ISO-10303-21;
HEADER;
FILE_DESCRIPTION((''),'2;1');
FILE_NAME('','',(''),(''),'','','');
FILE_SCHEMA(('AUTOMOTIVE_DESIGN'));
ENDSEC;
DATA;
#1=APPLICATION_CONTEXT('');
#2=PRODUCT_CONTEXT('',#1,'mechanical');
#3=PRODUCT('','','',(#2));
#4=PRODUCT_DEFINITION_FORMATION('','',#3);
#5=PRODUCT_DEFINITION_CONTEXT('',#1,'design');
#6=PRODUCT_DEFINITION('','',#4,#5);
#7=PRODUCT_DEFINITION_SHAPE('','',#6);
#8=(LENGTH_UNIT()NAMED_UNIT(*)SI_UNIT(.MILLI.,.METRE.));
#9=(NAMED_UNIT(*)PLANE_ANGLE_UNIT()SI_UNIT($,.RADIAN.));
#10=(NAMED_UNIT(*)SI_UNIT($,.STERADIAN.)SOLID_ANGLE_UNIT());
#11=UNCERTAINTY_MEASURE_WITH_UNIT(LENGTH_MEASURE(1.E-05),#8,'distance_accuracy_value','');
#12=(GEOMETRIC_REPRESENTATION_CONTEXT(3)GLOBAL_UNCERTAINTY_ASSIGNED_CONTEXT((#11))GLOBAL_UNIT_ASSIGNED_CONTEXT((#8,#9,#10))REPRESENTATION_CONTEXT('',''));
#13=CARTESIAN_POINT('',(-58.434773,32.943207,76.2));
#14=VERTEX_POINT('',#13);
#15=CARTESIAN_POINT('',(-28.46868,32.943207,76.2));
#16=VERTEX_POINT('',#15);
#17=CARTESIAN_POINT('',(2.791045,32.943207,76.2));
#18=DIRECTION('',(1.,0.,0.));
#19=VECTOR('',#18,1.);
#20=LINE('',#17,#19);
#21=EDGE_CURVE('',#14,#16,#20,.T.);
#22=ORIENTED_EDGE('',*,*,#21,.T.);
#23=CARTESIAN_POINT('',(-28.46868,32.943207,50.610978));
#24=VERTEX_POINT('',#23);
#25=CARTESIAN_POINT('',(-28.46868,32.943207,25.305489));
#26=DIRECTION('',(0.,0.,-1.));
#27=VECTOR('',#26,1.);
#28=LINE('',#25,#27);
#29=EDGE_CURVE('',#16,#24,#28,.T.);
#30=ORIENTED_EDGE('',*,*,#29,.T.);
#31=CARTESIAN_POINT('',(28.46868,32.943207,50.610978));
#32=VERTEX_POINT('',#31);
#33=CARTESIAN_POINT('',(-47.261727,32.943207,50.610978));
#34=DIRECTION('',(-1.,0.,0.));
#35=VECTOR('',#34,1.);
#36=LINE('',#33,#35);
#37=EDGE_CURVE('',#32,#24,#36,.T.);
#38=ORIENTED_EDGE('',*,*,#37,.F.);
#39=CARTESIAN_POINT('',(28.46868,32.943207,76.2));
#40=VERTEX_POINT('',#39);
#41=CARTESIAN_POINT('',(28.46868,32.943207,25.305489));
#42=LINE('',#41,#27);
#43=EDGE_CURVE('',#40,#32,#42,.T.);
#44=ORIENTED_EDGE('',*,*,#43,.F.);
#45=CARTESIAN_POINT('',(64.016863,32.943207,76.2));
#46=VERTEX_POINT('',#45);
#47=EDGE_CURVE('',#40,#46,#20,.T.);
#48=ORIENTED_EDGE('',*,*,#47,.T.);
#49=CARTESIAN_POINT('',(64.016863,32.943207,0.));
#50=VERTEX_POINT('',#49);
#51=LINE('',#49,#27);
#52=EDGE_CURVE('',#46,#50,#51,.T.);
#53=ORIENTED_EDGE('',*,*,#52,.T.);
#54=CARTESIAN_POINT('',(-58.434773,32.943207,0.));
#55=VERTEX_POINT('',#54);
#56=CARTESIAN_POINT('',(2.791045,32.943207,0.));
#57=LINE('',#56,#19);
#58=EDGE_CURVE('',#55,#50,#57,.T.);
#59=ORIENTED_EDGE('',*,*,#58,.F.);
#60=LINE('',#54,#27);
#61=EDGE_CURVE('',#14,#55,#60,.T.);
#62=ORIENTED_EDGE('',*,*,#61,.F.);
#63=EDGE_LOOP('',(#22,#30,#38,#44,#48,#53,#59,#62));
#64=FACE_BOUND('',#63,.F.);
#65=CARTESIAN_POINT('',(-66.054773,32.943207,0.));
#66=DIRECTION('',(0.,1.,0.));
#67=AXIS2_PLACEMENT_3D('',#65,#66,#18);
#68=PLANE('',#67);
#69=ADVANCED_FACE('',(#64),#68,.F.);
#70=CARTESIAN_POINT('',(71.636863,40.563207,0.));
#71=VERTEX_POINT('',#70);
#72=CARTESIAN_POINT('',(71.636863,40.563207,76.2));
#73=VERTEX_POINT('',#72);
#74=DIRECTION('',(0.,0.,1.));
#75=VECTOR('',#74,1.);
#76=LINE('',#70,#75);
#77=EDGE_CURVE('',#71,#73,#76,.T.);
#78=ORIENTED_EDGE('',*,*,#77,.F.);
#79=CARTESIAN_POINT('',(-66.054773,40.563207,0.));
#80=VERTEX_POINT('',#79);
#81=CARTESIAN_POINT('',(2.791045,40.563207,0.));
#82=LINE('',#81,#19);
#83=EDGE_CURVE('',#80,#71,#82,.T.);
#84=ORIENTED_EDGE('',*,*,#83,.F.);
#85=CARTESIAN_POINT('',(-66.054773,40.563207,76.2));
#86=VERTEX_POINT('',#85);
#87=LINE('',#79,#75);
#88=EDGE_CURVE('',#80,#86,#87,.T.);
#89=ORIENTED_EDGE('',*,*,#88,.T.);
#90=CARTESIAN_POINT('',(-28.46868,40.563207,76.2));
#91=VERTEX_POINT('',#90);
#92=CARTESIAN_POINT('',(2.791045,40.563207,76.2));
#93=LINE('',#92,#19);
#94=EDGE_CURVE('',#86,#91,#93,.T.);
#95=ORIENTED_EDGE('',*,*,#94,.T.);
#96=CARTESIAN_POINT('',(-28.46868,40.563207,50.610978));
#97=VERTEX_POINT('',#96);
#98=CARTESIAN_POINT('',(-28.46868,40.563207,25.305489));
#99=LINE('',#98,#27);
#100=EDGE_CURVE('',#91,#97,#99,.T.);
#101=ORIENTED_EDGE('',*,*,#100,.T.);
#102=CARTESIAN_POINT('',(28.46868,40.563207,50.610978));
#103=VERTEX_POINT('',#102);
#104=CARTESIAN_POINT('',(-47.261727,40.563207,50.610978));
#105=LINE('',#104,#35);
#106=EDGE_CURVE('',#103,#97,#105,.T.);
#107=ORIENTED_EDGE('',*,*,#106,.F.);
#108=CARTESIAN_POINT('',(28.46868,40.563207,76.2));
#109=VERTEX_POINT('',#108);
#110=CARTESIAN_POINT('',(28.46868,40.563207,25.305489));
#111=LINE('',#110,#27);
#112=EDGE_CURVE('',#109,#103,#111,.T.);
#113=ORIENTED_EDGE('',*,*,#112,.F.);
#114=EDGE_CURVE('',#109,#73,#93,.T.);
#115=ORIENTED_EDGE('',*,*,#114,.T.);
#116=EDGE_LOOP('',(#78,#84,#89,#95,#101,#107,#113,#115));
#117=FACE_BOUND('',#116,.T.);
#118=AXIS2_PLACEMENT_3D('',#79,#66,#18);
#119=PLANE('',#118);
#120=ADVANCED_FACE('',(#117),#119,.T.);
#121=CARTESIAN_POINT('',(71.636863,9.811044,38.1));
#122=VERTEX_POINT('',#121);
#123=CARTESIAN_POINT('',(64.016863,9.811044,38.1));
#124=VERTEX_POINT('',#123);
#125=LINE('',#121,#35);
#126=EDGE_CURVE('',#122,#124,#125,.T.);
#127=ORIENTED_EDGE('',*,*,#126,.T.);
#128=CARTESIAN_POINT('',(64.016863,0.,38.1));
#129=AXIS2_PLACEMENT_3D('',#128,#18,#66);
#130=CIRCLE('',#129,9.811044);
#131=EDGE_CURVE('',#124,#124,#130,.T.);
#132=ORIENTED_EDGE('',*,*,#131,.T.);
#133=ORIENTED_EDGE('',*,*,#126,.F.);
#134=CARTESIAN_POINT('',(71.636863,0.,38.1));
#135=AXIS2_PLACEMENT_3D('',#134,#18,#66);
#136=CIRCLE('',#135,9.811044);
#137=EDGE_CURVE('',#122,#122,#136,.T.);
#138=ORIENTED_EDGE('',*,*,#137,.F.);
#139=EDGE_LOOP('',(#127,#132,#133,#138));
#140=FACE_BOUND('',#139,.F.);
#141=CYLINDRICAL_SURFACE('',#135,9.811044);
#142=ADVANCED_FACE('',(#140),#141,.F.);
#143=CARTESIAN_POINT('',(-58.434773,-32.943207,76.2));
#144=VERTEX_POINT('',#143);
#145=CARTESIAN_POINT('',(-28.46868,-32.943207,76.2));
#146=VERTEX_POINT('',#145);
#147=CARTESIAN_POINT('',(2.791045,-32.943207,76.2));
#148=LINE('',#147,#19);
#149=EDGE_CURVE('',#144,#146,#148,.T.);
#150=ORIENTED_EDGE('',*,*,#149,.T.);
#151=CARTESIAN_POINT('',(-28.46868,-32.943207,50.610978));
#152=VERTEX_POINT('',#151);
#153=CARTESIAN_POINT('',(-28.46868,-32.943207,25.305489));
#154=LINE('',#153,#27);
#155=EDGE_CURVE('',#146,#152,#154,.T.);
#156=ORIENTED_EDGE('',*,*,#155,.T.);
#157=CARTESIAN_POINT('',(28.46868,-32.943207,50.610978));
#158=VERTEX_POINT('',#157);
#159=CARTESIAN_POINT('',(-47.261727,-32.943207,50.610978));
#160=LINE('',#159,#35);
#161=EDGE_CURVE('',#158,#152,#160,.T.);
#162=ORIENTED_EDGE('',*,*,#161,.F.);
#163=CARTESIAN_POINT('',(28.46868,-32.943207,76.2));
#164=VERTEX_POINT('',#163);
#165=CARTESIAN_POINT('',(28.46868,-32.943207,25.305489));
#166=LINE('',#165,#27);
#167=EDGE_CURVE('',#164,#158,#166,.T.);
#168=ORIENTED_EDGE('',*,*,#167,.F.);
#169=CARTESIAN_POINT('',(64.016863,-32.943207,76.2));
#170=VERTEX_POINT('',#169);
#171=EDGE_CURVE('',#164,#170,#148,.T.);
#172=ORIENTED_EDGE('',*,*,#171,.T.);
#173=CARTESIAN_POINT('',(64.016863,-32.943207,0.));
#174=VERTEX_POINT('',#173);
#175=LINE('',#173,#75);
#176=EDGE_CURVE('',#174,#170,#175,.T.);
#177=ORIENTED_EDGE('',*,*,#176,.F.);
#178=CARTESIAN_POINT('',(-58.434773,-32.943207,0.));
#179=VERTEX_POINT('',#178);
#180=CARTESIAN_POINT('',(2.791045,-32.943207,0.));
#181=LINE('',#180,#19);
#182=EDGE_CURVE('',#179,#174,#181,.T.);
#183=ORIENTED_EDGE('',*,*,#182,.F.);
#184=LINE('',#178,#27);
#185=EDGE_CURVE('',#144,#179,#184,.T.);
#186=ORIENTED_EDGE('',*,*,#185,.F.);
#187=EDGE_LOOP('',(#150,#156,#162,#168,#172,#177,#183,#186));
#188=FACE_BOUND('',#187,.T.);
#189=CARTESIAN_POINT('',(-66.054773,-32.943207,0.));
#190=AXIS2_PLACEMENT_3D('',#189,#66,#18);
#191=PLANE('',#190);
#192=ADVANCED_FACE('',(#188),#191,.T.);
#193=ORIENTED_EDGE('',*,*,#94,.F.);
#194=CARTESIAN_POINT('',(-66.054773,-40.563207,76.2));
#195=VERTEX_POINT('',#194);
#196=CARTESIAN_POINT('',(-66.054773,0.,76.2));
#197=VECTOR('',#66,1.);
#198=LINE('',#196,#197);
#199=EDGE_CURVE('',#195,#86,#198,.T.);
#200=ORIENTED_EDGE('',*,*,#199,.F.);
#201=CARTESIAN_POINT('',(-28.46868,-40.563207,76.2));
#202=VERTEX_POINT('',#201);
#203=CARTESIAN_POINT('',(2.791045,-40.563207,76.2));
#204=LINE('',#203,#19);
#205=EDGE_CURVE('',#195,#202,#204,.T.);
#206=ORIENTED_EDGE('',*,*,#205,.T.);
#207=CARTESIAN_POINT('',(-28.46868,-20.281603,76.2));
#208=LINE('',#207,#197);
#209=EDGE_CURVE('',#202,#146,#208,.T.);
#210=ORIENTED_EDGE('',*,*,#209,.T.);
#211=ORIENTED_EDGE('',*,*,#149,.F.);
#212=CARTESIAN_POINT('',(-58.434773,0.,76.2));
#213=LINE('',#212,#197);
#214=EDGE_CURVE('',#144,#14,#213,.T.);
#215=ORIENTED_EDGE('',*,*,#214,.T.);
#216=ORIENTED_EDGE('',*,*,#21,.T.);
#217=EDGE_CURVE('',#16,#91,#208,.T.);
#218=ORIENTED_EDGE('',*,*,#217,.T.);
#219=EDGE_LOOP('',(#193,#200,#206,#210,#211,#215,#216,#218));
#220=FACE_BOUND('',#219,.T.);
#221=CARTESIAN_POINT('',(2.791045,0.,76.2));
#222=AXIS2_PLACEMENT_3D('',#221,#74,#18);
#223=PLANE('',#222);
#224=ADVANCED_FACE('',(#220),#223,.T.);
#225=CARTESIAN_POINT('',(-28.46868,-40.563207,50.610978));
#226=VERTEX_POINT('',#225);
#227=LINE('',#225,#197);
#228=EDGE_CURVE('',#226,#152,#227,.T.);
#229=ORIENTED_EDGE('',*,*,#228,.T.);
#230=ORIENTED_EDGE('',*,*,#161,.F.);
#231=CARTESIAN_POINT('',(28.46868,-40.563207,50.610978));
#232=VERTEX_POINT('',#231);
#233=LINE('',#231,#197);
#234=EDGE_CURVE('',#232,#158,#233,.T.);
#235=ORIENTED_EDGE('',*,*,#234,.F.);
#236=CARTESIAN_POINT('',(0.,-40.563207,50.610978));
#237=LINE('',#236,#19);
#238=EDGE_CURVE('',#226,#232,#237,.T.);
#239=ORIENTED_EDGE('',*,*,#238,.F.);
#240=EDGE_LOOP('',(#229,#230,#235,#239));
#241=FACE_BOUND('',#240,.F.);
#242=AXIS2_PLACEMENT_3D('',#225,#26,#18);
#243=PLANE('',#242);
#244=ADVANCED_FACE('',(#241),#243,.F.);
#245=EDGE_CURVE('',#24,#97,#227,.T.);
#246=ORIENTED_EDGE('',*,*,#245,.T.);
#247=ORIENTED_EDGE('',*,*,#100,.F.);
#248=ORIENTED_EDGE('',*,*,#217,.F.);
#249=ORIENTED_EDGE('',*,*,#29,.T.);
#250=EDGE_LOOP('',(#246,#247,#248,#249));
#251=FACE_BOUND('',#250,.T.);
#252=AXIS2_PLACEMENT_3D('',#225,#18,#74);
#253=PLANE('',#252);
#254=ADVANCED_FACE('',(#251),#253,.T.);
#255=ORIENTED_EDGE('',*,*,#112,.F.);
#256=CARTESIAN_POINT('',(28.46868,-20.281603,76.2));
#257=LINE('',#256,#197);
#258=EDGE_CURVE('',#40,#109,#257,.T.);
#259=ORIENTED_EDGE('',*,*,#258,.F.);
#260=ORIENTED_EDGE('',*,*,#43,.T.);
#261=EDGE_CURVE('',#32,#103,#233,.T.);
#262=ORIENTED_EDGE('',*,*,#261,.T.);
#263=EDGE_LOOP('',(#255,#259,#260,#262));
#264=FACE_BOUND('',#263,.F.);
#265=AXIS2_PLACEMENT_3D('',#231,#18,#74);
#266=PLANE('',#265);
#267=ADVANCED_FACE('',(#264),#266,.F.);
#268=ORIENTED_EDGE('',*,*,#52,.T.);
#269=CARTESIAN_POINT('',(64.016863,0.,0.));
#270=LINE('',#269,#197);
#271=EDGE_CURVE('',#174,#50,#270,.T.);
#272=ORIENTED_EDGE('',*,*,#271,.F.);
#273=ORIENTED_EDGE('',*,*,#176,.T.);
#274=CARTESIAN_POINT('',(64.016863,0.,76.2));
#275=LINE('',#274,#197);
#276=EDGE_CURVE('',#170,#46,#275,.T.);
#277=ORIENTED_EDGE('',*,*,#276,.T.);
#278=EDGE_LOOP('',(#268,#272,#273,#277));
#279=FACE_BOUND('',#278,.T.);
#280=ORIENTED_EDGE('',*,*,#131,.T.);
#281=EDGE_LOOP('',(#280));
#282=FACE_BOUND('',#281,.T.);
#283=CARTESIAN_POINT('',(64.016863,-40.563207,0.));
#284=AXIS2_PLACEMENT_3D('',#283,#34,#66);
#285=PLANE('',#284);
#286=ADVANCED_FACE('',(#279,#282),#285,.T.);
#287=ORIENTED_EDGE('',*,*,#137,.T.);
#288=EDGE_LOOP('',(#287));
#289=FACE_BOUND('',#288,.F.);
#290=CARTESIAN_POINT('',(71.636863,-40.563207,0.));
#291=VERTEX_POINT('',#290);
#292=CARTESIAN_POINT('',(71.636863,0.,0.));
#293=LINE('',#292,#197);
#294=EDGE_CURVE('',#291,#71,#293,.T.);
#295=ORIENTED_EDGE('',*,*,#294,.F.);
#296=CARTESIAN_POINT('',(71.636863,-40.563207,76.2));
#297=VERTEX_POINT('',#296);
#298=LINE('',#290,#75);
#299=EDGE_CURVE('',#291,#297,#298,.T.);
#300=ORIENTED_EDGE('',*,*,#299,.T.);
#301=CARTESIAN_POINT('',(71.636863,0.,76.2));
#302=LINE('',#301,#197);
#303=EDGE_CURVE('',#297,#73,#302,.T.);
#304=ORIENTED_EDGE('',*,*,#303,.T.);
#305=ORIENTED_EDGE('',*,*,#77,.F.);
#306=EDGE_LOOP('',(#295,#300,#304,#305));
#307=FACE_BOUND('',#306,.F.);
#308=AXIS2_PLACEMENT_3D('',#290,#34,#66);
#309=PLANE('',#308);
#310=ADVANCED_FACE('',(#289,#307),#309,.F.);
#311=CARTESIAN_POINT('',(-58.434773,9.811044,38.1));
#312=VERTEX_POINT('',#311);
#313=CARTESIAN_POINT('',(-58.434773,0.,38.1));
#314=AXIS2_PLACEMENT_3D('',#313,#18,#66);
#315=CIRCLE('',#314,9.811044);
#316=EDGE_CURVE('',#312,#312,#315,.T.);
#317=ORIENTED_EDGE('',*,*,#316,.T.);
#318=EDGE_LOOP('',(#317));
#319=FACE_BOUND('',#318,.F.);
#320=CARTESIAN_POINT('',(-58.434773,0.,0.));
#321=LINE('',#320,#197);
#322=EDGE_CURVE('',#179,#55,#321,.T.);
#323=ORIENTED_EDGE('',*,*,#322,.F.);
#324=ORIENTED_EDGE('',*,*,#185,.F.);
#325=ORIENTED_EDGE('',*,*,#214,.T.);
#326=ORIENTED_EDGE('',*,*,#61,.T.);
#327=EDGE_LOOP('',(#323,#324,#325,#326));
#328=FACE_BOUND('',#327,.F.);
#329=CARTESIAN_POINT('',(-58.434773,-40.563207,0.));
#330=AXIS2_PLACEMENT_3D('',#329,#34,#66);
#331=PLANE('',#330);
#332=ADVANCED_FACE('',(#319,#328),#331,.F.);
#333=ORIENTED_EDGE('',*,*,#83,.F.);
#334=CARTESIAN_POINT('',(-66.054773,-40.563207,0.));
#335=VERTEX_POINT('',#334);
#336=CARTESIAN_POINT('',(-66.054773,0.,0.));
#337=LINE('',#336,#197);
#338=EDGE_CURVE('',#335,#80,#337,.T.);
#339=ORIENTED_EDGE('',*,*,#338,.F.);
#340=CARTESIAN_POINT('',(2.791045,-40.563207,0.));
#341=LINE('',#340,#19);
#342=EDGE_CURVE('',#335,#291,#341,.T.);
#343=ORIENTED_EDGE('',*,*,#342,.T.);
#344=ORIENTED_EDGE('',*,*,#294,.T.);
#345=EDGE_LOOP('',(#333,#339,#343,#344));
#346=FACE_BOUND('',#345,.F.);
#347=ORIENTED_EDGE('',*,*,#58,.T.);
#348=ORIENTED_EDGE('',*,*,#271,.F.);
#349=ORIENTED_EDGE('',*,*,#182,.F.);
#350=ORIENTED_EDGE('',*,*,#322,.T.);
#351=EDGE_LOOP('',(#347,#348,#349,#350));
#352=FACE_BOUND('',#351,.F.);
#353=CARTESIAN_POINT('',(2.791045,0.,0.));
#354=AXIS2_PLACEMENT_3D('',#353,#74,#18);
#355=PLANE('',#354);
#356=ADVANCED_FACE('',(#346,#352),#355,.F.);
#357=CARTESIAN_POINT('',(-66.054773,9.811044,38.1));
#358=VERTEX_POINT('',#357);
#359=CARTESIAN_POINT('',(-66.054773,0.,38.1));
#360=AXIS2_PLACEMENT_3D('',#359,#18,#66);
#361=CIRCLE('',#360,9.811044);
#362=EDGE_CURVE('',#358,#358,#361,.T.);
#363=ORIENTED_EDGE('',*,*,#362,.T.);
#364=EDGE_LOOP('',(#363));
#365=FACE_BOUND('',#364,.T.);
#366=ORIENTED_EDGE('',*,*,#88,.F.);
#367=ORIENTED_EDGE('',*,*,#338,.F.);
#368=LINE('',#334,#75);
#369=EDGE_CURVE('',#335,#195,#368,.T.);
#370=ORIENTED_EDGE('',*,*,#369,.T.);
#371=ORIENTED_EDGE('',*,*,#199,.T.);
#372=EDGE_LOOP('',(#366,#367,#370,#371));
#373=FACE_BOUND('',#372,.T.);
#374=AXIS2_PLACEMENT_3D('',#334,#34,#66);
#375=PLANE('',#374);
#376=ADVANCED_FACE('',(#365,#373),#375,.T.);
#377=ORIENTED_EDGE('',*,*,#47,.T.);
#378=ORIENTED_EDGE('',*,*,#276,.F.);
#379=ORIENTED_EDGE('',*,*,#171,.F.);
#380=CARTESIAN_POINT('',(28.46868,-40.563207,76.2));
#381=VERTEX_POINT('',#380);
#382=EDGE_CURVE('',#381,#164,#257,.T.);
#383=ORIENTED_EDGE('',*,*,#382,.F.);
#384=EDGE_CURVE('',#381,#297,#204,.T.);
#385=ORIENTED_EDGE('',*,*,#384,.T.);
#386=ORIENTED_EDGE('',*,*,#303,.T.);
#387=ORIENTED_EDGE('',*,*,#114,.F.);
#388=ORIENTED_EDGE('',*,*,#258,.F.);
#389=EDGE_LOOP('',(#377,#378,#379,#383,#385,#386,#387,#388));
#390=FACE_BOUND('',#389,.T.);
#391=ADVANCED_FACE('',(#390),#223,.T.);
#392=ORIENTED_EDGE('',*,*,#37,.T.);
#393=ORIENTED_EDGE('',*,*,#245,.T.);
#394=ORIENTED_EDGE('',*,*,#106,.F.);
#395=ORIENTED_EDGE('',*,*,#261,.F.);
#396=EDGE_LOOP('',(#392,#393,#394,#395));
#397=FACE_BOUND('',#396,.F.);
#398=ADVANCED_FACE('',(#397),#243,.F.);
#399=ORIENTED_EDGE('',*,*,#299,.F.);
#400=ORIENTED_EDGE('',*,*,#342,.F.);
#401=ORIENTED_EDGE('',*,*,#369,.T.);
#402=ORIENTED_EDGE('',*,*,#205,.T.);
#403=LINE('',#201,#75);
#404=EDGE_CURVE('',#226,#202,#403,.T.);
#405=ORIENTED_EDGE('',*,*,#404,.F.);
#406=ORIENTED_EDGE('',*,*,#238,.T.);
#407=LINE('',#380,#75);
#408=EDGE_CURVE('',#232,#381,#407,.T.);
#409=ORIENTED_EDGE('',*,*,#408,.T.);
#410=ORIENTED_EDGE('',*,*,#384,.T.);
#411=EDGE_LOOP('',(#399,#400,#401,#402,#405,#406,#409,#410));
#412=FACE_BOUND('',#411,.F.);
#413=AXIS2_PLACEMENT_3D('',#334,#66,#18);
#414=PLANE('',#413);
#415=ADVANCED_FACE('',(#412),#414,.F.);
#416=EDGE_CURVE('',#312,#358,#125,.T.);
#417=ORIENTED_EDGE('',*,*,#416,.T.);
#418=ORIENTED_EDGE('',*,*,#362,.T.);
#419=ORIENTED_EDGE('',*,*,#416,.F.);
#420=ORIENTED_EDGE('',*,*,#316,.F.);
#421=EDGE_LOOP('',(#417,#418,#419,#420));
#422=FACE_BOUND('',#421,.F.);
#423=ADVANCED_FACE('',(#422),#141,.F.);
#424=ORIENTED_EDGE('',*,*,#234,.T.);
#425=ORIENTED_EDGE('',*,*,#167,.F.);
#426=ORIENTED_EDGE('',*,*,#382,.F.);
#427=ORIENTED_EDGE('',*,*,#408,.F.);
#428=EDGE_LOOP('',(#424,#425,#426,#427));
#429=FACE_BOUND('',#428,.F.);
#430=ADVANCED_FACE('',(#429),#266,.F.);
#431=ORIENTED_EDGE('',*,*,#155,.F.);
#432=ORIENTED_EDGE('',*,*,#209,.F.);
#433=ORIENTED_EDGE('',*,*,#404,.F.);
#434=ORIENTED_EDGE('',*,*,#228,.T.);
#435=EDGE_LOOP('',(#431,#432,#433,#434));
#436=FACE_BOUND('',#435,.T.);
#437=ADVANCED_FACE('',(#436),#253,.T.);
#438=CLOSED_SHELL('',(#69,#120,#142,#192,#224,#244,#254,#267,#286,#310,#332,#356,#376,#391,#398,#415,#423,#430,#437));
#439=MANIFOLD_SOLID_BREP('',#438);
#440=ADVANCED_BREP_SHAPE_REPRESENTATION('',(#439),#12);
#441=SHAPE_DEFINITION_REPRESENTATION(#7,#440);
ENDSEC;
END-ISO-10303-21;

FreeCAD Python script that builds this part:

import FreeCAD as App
import Part
import Sketcher
Q = App.Units.Quantity


def faces_at(feature, points):
    """Names of the faces that lie closest to the given points."""
    faces = feature.Shape.Faces
    near = lambda p: min(range(len(faces)), key=lambda i: faces[i].distToShape(Part.Vertex(*p))[0])
    return sorted({f"Face{near(p) + 1}" for p in points})


def add_polygon(sketch, points):
    """Adds a closed chain of lines whose ends are joined by coincident constraints."""
    first, n = sketch.GeometryCount, len(points)
    for a, b in zip(points, points[1:] + points[:1]):
        sketch.addGeometry(Part.LineSegment(App.Vector(*a, 0), App.Vector(*b, 0)), False)
    for i in range(n):
        sketch.addConstraint(Sketcher.Constraint("Coincident", first + i, 2, first + (i + 1) % n, 1))

doc = App.newDocument("Part")
params = doc.addObject("Spreadsheet::Sheet", "Params")
for row, (alias, value) in enumerate([
    ("pad1_length", "3 in"),
    ("thickness_wall", "0.3 in"),
], start=1):
    params.set(f"A{row}", alias)
    params.set(f"B{row}", "=" + value)
    params.setAlias(f"B{row}", alias)

body = doc.addObject("PartDesign::Body", "Body")

sketch1 = body.newObject("Sketcher::SketchObject", "Sketch")
sketch1.AttachmentSupport = (doc.getObject("XY_Plane"), [""])
sketch1.MapMode = "FlatFace"
add_polygon(sketch1, [(-66, 41), (-66, -41), (72, -41), (72, 41)])
sketch1.addConstraint([
    Sketcher.Constraint("Vertical", 0),
    Sketcher.Constraint("Horizontal", 1),
    Sketcher.Constraint("Vertical", 2),
    Sketcher.Constraint("Horizontal", 3),
    Sketcher.Constraint("DistanceX", 1, 1, 1, 2, Q("137.691636 mm")),
    Sketcher.Constraint("DistanceY", 0, 2, 0, 1, Q("81.126414 mm")),
    Sketcher.Constraint("DistanceX", 0, 2, -1, 1, Q("66.054773 mm")),
    Sketcher.Constraint("DistanceY", 0, 2, -1, 1, Q("40.563207 mm")),
])
pad1 = body.newObject("PartDesign::Pad", "Pad")
pad1.Profile = sketch1
pad1.setExpression("Length", "Params.pad1_length")
doc.recompute()

thickness = body.newObject("PartDesign::Thickness", "Thickness")
thickness.Base = (pad1, faces_at(pad1, [(2.791, 0, 76.2), (2.791, 0, 0)]))
thickness.setExpression("Value", "Params.thickness_wall")
thickness.Reversed = True
thickness.Join = "Arc"

sketch2 = body.newObject("Sketcher::SketchObject", "Sketch001")
sketch2.AttachmentSupport = (doc.getObject("XZ_Plane"), [""])
sketch2.MapMode = "FlatFace"
sketch2.AttachmentOffset = App.Placement(App.Vector(0, 0, 40.563207), App.Rotation())
add_polygon(sketch2, [(-28, 102), (-28, 51), (28, 51), (28, 102)])
sketch2.addConstraint([
    Sketcher.Constraint("Vertical", 0),
    Sketcher.Constraint("Horizontal", 1),
    Sketcher.Constraint("Vertical", 2),
    Sketcher.Constraint("Horizontal", 3),
    Sketcher.Constraint("DistanceX", 1, 1, 1, 2, Q("56.93736 mm")),
    Sketcher.Constraint("DistanceY", 0, 2, 0, 1, Q("51.178044 mm")),
    Sketcher.Constraint("DistanceX", 0, 2, -1, 1, Q("28.46868 mm")),
    Sketcher.Constraint("DistanceY", -1, 1, 0, 2, Q("50.610978 mm")),
])
pocket1 = body.newObject("PartDesign::Pocket", "Pocket")
pocket1.Profile = sketch2
pocket1.Type = "ThroughAll"

sketch3 = body.newObject("Sketcher::SketchObject", "Sketch002")
sketch3.AttachmentSupport = (doc.getObject("YZ_Plane"), [""])
sketch3.MapMode = "FlatFace"
sketch3.AttachmentOffset = App.Placement(App.Vector(0, 0, 71.636863), App.Rotation())
sketch3.addGeometry(Part.Circle(App.Vector(0, 38, 0), App.Vector(0, 0, 1), 10), False)
sketch3.addConstraint([
    Sketcher.Constraint("PointOnObject", 0, 3, -2),
    Sketcher.Constraint("DistanceY", -1, 1, 0, 3, Q("1.5 in")),
    Sketcher.Constraint("Diameter", 0, Q("19.622088 mm")),
])
pocket2 = body.newObject("PartDesign::Pocket", "Pocket001")
pocket2.Profile = sketch3
pocket2.Type = "ThroughAll"

doc.recompute()
